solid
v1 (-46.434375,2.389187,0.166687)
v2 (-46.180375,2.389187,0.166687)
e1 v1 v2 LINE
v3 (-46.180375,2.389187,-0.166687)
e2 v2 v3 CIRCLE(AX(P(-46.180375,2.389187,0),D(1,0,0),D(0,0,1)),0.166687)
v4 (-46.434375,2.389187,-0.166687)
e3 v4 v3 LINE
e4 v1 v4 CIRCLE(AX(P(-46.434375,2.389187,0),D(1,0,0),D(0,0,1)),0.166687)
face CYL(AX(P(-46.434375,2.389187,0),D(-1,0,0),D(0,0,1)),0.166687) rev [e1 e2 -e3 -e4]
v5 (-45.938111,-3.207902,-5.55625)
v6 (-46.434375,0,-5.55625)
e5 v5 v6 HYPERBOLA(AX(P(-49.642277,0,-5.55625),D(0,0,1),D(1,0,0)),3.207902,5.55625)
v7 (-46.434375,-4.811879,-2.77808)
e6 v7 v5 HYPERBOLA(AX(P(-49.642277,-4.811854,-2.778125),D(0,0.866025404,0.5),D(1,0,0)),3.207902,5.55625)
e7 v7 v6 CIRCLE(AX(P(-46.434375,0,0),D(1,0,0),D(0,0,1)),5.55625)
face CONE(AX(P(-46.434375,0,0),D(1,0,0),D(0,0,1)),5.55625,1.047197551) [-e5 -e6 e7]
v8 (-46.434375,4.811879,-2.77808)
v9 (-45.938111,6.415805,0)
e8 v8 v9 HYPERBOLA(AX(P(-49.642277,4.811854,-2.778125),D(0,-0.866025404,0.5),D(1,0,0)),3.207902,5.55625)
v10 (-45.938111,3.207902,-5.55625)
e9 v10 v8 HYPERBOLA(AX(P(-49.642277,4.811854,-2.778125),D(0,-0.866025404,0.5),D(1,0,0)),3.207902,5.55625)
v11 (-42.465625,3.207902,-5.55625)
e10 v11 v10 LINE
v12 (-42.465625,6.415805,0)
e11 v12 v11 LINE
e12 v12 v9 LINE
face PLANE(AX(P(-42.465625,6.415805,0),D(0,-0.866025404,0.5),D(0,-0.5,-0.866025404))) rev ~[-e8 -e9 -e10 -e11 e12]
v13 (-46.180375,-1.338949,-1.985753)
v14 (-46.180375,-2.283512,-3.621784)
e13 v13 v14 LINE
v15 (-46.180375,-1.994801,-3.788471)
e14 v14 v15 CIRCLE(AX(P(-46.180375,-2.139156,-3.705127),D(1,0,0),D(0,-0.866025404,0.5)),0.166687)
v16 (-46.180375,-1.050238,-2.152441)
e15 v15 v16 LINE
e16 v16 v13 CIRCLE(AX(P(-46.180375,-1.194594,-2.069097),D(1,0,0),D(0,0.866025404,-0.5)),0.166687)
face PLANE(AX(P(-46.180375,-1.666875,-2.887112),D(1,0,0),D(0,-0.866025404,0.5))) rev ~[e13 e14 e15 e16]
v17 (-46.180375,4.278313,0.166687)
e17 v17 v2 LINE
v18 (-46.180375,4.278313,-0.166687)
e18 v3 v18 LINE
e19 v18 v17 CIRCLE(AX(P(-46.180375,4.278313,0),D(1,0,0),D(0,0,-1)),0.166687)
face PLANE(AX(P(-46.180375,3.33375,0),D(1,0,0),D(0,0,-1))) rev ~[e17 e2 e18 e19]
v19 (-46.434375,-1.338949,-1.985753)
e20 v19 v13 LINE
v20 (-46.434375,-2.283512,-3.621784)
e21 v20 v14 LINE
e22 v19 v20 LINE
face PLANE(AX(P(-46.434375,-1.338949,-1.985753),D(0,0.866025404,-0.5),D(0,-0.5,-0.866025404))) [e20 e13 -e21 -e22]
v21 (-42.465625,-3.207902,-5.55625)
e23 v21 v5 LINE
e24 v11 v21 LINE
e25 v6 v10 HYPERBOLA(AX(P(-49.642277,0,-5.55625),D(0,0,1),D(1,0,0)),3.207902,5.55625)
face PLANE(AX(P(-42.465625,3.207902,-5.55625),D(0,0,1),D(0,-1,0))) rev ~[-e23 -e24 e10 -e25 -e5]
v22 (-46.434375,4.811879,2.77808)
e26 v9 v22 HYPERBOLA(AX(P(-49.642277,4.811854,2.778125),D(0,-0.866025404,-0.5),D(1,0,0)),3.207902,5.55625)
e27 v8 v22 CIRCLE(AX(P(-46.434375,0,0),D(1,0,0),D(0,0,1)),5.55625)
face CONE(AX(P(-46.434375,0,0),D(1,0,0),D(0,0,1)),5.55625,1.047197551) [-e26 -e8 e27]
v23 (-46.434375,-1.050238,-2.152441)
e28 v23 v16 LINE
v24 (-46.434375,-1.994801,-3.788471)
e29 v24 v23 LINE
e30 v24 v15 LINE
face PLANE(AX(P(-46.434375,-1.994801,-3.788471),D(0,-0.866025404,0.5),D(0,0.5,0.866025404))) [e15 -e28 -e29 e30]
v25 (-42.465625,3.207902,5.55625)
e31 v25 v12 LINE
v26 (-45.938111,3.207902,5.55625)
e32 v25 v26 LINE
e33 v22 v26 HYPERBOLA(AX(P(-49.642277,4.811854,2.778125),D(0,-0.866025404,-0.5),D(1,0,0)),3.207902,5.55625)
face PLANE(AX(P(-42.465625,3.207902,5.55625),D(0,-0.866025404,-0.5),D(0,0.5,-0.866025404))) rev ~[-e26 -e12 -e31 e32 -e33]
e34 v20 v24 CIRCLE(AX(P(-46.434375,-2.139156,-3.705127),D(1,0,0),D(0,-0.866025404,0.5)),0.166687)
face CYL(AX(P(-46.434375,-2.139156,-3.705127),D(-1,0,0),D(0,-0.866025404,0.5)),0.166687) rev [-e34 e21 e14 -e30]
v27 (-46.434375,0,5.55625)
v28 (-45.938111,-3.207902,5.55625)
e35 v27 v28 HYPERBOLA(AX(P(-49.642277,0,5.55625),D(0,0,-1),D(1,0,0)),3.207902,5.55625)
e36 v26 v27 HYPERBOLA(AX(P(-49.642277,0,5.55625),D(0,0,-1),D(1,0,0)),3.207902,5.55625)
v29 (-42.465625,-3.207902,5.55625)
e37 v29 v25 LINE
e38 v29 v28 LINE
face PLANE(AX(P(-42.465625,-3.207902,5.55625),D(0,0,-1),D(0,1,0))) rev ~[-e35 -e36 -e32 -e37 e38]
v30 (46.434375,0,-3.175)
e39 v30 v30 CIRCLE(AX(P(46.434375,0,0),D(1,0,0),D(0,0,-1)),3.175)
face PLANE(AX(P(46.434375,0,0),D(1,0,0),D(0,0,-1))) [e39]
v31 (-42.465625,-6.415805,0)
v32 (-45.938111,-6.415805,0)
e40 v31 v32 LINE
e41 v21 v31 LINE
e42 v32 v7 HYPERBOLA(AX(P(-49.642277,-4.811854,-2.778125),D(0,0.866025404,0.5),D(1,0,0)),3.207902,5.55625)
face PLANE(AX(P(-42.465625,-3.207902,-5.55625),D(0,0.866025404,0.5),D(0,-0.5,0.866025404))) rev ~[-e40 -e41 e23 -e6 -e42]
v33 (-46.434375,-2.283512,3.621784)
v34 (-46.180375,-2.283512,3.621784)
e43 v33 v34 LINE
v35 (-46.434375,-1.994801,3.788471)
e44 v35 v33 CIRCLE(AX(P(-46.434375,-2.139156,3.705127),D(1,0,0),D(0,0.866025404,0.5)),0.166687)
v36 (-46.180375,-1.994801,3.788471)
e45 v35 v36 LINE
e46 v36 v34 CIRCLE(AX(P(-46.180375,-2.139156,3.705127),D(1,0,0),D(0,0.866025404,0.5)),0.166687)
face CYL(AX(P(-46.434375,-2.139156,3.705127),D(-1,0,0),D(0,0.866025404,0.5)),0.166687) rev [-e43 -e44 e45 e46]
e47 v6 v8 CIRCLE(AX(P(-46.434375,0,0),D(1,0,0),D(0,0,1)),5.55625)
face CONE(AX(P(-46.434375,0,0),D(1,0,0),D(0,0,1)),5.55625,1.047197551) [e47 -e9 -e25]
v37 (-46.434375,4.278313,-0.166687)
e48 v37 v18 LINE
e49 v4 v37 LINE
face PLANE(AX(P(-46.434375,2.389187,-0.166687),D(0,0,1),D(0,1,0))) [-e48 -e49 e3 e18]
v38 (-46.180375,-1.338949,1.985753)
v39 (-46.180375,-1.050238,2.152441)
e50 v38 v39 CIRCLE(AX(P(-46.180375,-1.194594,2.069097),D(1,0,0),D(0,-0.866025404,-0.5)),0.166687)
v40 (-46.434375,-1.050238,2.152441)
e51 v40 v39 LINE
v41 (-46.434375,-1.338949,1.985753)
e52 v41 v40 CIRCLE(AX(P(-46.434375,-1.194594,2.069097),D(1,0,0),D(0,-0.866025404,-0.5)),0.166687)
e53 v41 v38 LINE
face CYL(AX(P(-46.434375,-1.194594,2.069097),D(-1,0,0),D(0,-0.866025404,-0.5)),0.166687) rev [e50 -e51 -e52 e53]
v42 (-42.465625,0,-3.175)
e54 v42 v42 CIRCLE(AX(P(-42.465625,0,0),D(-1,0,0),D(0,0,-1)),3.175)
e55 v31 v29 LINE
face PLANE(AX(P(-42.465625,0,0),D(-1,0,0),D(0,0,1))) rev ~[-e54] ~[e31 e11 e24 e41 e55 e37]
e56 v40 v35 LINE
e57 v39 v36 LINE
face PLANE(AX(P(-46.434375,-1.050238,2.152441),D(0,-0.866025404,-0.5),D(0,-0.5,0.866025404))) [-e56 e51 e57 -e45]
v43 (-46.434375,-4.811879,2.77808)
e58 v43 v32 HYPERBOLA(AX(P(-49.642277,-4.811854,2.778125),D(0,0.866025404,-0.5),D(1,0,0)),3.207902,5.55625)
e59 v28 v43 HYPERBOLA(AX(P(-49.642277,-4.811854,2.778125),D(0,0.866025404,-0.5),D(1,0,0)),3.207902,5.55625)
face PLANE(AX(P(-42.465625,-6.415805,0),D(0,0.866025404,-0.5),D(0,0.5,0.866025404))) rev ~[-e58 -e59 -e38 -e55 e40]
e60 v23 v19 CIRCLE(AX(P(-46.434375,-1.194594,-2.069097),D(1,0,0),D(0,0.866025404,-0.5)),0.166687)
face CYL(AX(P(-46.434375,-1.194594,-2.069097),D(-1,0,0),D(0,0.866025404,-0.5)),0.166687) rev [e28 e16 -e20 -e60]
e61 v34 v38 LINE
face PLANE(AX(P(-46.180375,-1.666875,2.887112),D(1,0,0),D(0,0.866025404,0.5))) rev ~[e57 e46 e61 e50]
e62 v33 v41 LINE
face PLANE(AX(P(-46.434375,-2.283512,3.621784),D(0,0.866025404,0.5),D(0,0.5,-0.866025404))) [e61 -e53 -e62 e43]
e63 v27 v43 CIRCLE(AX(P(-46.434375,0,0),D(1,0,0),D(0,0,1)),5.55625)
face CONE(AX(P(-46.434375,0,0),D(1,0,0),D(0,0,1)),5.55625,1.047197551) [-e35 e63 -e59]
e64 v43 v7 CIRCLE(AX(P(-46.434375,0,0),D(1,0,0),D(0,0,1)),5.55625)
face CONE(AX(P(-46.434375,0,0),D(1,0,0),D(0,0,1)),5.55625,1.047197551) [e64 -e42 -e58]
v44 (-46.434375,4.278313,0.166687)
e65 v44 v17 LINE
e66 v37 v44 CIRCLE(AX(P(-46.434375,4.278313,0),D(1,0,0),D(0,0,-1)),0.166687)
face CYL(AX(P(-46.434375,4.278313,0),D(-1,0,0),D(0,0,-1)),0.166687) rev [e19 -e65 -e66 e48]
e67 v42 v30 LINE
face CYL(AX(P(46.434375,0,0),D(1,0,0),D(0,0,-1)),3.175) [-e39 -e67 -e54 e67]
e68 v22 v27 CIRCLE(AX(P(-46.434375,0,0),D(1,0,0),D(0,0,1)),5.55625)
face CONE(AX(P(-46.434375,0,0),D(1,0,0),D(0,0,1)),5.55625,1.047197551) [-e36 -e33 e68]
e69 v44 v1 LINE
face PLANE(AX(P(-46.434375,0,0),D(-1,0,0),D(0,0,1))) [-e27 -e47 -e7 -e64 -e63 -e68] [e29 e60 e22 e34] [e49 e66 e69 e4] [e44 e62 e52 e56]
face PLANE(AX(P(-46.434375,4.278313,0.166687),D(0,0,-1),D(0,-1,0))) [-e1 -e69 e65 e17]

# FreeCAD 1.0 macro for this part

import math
import FreeCAD as App
import Part
import Sketcher
Q = App.Units.Quantity

doc = App.newDocument("Part")
body = doc.addObject("PartDesign::Body", "Body")

# Sketch on YZ plane
sketch1 = doc.addObject("Sketcher::SketchObject", "Sketch")
body.addObject(sketch1)
sketch1.AttachmentSupport = (doc.YZ_Plane, [""])
sketch1.MapMode = "FlatFace"
sketch1.AttachmentOffset = App.Placement(App.Vector(0, 0, 1.828125 * 25.4), App.Rotation())
sketch1.addGeometry(Part.Circle(App.Vector(0, 0, 0), App.Vector(0, 0, 1), 3.2), False)
sketch1.addConstraint(Sketcher.Constraint("Coincident", 0, 3, -1, 1))
sketch1.addConstraint(Sketcher.Constraint("Diameter", 0, Q("0.25 in")))
pad1 = doc.addObject("PartDesign::Pad", "Pad")
body.addObject(pad1)
pad1.Profile = sketch1
pad1.Length = Q("3.5 in")
pad1.Reversed = True

# Sketch on XY plane
sketch2 = doc.addObject("Sketcher::SketchObject", "Sketch001")
body.addObject(sketch2)
sketch2.AttachmentSupport = (doc.XY_Plane, [""])
sketch2.MapMode = "FlatFace"
sketch2.addGeometry(Part.LineSegment(App.Vector(-42.5, 3.2, 0), App.Vector(-42.5, 0, 0)), False)
sketch2.addGeometry(Part.LineSegment(App.Vector(-42.5, 0, 0), App.Vector(30.6, 0, 0)), False)
sketch2.addGeometry(Part.LineSegment(App.Vector(30.6, 0, 0), App.Vector(27.4, 3.2, 0)), False)
sketch2.addGeometry(Part.LineSegment(App.Vector(27.4, 3.2, 0), App.Vector(-42.5, 3.2, 0)), False)
sketch2.addConstraint(Sketcher.Constraint("Coincident", 0, 2, 1, 1))
sketch2.addConstraint(Sketcher.Constraint("Coincident", 1, 2, 2, 1))
sketch2.addConstraint(Sketcher.Constraint("Coincident", 2, 2, 3, 1))
sketch2.addConstraint(Sketcher.Constraint("Coincident", 3, 2, 0, 1))
sketch2.addConstraint(Sketcher.Constraint("Vertical", 0))
sketch2.addConstraint(Sketcher.Constraint("Horizontal", 1))
sketch2.addConstraint(Sketcher.Constraint("Horizontal", 3))
sketch2.addConstraint(Sketcher.Constraint("PointOnObject", 0, 2, -1))
sketch2.addConstraint(Sketcher.Constraint("Angle", 2, Q("135 deg")))
sketch2.addConstraint(Sketcher.Constraint("DistanceX", 3, 2, 3, 1, Q("2.75 in")))
sketch2.addConstraint(Sketcher.Constraint("DistanceX", 1, 1, 1, 2, Q("2.875 in")))
sketch2.addConstraint(Sketcher.Constraint("DistanceX", 0, 2, -1, 1, Q("1.671875 in")))
revolution = doc.addObject("PartDesign::Revolution", "Revolution")
body.addObject(revolution)
revolution.Profile = sketch2
revolution.ReferenceAxis = (sketch2, ["H_Axis"])
revolution.Angle = 360

# Sketch on YZ plane
sketch3 = doc.addObject("Sketcher::SketchObject", "Sketch002")
body.addObject(sketch3)
sketch3.AttachmentSupport = (doc.YZ_Plane, [""])
sketch3.MapMode = "FlatFace"
sketch3.AttachmentOffset = App.Placement(App.Vector(0, 0, -1.671875 * 25.4), App.Rotation())
sketch3.addGeometry(Part.LineSegment(App.Vector(3, 6, 0), App.Vector(6, 0, 0)), False)
sketch3.addGeometry(Part.LineSegment(App.Vector(6, 0, 0), App.Vector(3, -6, 0)), False)
sketch3.addGeometry(Part.LineSegment(App.Vector(3, -6, 0), App.Vector(-3, -6, 0)), False)
sketch3.addGeometry(Part.LineSegment(App.Vector(-3, -6, 0), App.Vector(-6, 0, 0)), False)
sketch3.addGeometry(Part.LineSegment(App.Vector(-6, 0, 0), App.Vector(-3, 6, 0)), False)
sketch3.addGeometry(Part.LineSegment(App.Vector(-3, 6, 0), App.Vector(3, 6, 0)), False)
sketch3.addConstraint(Sketcher.Constraint("Coincident", 0, 2, 1, 1))
sketch3.addConstraint(Sketcher.Constraint("Coincident", 1, 2, 2, 1))
sketch3.addConstraint(Sketcher.Constraint("Coincident", 2, 2, 3, 1))
sketch3.addConstraint(Sketcher.Constraint("Coincident", 3, 2, 4, 1))
sketch3.addConstraint(Sketcher.Constraint("Coincident", 4, 2, 5, 1))
sketch3.addConstraint(Sketcher.Constraint("Coincident", 5, 2, 0, 1))
sketch3.addConstraint(Sketcher.Constraint("Horizontal", 2))
sketch3.addConstraint(Sketcher.Constraint("Horizontal", 5))
sketch3.addConstraint(Sketcher.Constraint("Symmetric", 0, 2, 3, 2, -1, 1))
sketch3.addConstraint(Sketcher.Constraint("Symmetric", 1, 2, 4, 2, -1, 1))
sketch3.addConstraint(Sketcher.Constraint("PointOnObject", 0, 2, -1))
sketch3.addConstraint(Sketcher.Constraint("Parallel", 0, 3))
sketch3.addConstraint(Sketcher.Constraint("Vertical", 2, 2, 4, 2))
sketch3.addConstraint(Sketcher.Constraint("Angle", 0, Q("-60 deg")))
sketch3.addConstraint(Sketcher.Constraint("DistanceY", 1, 2, -1, 1, Q("0.21875 in")))
sketch3.addConstraint(Sketcher.Constraint("DistanceX", 2, 2, 2, 1, Q("6.415805 mm")))
pad2 = doc.addObject("PartDesign::Pad", "Pad001")
body.addObject(pad2)
pad2.Profile = sketch3
pad2.Length = Q("0.15625 in")
pad2.Reversed = True

# Sketch on YZ plane
sketch4 = doc.addObject("Sketcher::SketchObject", "Sketch003")
body.addObject(sketch4)
sketch4.AttachmentSupport = (doc.YZ_Plane, [""])
sketch4.MapMode = "FlatFace"
sketch4.AttachmentOffset = App.Placement(App.Vector(0, 0, -1.828125 * 25.4), App.Rotation())
sketch4.addGeometry(Part.LineSegment(App.Vector(179, -179, 0), App.Vector(-179, -179, 0)), False)
sketch4.addGeometry(Part.LineSegment(App.Vector(-179, -179, 0), App.Vector(-179, 179, 0)), False)
sketch4.addGeometry(Part.LineSegment(App.Vector(-179, 179, 0), App.Vector(179, 179, 0)), False)
sketch4.addGeometry(Part.LineSegment(App.Vector(179, 179, 0), App.Vector(179, -179, 0)), False)
sketch4.addGeometry(Part.Circle(App.Vector(0, 0, 0), App.Vector(0, 0, 1), 6), False)
sketch4.addConstraint(Sketcher.Constraint("Coincident", 0, 2, 1, 1))
sketch4.addConstraint(Sketcher.Constraint("Coincident", 1, 2, 2, 1))
sketch4.addConstraint(Sketcher.Constraint("Coincident", 2, 2, 3, 1))
sketch4.addConstraint(Sketcher.Constraint("Coincident", 3, 2, 0, 1))
sketch4.addConstraint(Sketcher.Constraint("Horizontal", 0))
sketch4.addConstraint(Sketcher.Constraint("Vertical", 1))
sketch4.addConstraint(Sketcher.Constraint("Horizontal", 2))
sketch4.addConstraint(Sketcher.Constraint("Vertical", 3))
sketch4.addConstraint(Sketcher.Constraint("Coincident", 4, 3, -1, 1))
sketch4.addConstraint(Sketcher.Constraint("Symmetric", 0, 2, 2, 2, -1, 1))
sketch4.addConstraint(Sketcher.Constraint("Diameter", 4, Q("0.4375 in")))
sketch4.addConstraint(Sketcher.Constraint("DistanceX", 0, 2, 0, 1, Q("358.884 mm")))
sketch4.addConstraint(Sketcher.Constraint("DistanceY", 1, 1, 1, 2, Q("357.164 mm")))
pocket1 = doc.addObject("PartDesign::Pocket", "Pocket")
body.addObject(pocket1)
pocket1.Profile = sketch4
pocket1.Length = 93.86875
pocket1.Reversed = True
pocket1.TaperAngle = 60

# Sketch on YZ plane
sketch5 = doc.addObject("Sketcher::SketchObject", "Sketch004")
body.addObject(sketch5)
sketch5.AttachmentSupport = (doc.YZ_Plane, [""])
sketch5.MapMode = "FlatFace"
sketch5.AttachmentOffset = App.Placement(App.Vector(0, 0, -1.828125 * 25.4), App.Rotation())
sketch5.addGeometry(Part.LineSegment(App.Vector(2.39, 0.17, 0), App.Vector(4.28, 0.17, 0)), False)
sketch5.addGeometry(Part.ArcOfCircle(Part.Circle(App.Vector(4.28, 0, 0), App.Vector(0, 0, 1), 0.17), math.radians(-90), math.radians(90)), False)
sketch5.addGeometry(Part.LineSegment(App.Vector(4.28, -0.17, 0), App.Vector(2.39, -0.17, 0)), False)
sketch5.addGeometry(Part.ArcOfCircle(Part.Circle(App.Vector(2.39, 0, 0), App.Vector(0, 0, 1), 0.17), math.radians(90), math.radians(270)), False)
sketch5.addConstraint(Sketcher.Constraint("Tangent", 0, 2, 1, 2))
sketch5.addConstraint(Sketcher.Constraint("Tangent", 1, 1, 2, 1))
sketch5.addConstraint(Sketcher.Constraint("Tangent", 2, 2, 3, 2))
sketch5.addConstraint(Sketcher.Constraint("Tangent", 3, 1, 0, 1))
sketch5.addConstraint(Sketcher.Constraint("Horizontal", 0))
sketch5.addConstraint(Sketcher.Constraint("Horizontal", 2))
sketch5.addConstraint(Sketcher.Constraint("PointOnObject", 1, 3, -1))
sketch5.addConstraint(Sketcher.Constraint("Radius", 1, Q("0.166687 mm")))
sketch5.addConstraint(Sketcher.Constraint("DistanceX", 0, 1, 0, 2, Q("1.889125 mm")))
sketch5.addConstraint(Sketcher.Constraint("DistanceX", -1, 1, 1, 3, Q("4.278313 mm")))
pocket2 = doc.addObject("PartDesign::Pocket", "Pocket001")
body.addObject(pocket2)
pocket2.Profile = sketch5
pocket2.Length = Q("0.01 in")
pocket2.Reversed = True
doc.recompute()

polarpattern = doc.addObject("PartDesign::PolarPattern", "PolarPattern")
body.addObject(polarpattern)
polarpattern.Originals = [pocket2]
polarpattern.Axis = (doc.X_Axis, [""])
polarpattern.Angle = 360
polarpattern.Occurrences = 3
body.Tip = polarpattern

doc.recompute()
